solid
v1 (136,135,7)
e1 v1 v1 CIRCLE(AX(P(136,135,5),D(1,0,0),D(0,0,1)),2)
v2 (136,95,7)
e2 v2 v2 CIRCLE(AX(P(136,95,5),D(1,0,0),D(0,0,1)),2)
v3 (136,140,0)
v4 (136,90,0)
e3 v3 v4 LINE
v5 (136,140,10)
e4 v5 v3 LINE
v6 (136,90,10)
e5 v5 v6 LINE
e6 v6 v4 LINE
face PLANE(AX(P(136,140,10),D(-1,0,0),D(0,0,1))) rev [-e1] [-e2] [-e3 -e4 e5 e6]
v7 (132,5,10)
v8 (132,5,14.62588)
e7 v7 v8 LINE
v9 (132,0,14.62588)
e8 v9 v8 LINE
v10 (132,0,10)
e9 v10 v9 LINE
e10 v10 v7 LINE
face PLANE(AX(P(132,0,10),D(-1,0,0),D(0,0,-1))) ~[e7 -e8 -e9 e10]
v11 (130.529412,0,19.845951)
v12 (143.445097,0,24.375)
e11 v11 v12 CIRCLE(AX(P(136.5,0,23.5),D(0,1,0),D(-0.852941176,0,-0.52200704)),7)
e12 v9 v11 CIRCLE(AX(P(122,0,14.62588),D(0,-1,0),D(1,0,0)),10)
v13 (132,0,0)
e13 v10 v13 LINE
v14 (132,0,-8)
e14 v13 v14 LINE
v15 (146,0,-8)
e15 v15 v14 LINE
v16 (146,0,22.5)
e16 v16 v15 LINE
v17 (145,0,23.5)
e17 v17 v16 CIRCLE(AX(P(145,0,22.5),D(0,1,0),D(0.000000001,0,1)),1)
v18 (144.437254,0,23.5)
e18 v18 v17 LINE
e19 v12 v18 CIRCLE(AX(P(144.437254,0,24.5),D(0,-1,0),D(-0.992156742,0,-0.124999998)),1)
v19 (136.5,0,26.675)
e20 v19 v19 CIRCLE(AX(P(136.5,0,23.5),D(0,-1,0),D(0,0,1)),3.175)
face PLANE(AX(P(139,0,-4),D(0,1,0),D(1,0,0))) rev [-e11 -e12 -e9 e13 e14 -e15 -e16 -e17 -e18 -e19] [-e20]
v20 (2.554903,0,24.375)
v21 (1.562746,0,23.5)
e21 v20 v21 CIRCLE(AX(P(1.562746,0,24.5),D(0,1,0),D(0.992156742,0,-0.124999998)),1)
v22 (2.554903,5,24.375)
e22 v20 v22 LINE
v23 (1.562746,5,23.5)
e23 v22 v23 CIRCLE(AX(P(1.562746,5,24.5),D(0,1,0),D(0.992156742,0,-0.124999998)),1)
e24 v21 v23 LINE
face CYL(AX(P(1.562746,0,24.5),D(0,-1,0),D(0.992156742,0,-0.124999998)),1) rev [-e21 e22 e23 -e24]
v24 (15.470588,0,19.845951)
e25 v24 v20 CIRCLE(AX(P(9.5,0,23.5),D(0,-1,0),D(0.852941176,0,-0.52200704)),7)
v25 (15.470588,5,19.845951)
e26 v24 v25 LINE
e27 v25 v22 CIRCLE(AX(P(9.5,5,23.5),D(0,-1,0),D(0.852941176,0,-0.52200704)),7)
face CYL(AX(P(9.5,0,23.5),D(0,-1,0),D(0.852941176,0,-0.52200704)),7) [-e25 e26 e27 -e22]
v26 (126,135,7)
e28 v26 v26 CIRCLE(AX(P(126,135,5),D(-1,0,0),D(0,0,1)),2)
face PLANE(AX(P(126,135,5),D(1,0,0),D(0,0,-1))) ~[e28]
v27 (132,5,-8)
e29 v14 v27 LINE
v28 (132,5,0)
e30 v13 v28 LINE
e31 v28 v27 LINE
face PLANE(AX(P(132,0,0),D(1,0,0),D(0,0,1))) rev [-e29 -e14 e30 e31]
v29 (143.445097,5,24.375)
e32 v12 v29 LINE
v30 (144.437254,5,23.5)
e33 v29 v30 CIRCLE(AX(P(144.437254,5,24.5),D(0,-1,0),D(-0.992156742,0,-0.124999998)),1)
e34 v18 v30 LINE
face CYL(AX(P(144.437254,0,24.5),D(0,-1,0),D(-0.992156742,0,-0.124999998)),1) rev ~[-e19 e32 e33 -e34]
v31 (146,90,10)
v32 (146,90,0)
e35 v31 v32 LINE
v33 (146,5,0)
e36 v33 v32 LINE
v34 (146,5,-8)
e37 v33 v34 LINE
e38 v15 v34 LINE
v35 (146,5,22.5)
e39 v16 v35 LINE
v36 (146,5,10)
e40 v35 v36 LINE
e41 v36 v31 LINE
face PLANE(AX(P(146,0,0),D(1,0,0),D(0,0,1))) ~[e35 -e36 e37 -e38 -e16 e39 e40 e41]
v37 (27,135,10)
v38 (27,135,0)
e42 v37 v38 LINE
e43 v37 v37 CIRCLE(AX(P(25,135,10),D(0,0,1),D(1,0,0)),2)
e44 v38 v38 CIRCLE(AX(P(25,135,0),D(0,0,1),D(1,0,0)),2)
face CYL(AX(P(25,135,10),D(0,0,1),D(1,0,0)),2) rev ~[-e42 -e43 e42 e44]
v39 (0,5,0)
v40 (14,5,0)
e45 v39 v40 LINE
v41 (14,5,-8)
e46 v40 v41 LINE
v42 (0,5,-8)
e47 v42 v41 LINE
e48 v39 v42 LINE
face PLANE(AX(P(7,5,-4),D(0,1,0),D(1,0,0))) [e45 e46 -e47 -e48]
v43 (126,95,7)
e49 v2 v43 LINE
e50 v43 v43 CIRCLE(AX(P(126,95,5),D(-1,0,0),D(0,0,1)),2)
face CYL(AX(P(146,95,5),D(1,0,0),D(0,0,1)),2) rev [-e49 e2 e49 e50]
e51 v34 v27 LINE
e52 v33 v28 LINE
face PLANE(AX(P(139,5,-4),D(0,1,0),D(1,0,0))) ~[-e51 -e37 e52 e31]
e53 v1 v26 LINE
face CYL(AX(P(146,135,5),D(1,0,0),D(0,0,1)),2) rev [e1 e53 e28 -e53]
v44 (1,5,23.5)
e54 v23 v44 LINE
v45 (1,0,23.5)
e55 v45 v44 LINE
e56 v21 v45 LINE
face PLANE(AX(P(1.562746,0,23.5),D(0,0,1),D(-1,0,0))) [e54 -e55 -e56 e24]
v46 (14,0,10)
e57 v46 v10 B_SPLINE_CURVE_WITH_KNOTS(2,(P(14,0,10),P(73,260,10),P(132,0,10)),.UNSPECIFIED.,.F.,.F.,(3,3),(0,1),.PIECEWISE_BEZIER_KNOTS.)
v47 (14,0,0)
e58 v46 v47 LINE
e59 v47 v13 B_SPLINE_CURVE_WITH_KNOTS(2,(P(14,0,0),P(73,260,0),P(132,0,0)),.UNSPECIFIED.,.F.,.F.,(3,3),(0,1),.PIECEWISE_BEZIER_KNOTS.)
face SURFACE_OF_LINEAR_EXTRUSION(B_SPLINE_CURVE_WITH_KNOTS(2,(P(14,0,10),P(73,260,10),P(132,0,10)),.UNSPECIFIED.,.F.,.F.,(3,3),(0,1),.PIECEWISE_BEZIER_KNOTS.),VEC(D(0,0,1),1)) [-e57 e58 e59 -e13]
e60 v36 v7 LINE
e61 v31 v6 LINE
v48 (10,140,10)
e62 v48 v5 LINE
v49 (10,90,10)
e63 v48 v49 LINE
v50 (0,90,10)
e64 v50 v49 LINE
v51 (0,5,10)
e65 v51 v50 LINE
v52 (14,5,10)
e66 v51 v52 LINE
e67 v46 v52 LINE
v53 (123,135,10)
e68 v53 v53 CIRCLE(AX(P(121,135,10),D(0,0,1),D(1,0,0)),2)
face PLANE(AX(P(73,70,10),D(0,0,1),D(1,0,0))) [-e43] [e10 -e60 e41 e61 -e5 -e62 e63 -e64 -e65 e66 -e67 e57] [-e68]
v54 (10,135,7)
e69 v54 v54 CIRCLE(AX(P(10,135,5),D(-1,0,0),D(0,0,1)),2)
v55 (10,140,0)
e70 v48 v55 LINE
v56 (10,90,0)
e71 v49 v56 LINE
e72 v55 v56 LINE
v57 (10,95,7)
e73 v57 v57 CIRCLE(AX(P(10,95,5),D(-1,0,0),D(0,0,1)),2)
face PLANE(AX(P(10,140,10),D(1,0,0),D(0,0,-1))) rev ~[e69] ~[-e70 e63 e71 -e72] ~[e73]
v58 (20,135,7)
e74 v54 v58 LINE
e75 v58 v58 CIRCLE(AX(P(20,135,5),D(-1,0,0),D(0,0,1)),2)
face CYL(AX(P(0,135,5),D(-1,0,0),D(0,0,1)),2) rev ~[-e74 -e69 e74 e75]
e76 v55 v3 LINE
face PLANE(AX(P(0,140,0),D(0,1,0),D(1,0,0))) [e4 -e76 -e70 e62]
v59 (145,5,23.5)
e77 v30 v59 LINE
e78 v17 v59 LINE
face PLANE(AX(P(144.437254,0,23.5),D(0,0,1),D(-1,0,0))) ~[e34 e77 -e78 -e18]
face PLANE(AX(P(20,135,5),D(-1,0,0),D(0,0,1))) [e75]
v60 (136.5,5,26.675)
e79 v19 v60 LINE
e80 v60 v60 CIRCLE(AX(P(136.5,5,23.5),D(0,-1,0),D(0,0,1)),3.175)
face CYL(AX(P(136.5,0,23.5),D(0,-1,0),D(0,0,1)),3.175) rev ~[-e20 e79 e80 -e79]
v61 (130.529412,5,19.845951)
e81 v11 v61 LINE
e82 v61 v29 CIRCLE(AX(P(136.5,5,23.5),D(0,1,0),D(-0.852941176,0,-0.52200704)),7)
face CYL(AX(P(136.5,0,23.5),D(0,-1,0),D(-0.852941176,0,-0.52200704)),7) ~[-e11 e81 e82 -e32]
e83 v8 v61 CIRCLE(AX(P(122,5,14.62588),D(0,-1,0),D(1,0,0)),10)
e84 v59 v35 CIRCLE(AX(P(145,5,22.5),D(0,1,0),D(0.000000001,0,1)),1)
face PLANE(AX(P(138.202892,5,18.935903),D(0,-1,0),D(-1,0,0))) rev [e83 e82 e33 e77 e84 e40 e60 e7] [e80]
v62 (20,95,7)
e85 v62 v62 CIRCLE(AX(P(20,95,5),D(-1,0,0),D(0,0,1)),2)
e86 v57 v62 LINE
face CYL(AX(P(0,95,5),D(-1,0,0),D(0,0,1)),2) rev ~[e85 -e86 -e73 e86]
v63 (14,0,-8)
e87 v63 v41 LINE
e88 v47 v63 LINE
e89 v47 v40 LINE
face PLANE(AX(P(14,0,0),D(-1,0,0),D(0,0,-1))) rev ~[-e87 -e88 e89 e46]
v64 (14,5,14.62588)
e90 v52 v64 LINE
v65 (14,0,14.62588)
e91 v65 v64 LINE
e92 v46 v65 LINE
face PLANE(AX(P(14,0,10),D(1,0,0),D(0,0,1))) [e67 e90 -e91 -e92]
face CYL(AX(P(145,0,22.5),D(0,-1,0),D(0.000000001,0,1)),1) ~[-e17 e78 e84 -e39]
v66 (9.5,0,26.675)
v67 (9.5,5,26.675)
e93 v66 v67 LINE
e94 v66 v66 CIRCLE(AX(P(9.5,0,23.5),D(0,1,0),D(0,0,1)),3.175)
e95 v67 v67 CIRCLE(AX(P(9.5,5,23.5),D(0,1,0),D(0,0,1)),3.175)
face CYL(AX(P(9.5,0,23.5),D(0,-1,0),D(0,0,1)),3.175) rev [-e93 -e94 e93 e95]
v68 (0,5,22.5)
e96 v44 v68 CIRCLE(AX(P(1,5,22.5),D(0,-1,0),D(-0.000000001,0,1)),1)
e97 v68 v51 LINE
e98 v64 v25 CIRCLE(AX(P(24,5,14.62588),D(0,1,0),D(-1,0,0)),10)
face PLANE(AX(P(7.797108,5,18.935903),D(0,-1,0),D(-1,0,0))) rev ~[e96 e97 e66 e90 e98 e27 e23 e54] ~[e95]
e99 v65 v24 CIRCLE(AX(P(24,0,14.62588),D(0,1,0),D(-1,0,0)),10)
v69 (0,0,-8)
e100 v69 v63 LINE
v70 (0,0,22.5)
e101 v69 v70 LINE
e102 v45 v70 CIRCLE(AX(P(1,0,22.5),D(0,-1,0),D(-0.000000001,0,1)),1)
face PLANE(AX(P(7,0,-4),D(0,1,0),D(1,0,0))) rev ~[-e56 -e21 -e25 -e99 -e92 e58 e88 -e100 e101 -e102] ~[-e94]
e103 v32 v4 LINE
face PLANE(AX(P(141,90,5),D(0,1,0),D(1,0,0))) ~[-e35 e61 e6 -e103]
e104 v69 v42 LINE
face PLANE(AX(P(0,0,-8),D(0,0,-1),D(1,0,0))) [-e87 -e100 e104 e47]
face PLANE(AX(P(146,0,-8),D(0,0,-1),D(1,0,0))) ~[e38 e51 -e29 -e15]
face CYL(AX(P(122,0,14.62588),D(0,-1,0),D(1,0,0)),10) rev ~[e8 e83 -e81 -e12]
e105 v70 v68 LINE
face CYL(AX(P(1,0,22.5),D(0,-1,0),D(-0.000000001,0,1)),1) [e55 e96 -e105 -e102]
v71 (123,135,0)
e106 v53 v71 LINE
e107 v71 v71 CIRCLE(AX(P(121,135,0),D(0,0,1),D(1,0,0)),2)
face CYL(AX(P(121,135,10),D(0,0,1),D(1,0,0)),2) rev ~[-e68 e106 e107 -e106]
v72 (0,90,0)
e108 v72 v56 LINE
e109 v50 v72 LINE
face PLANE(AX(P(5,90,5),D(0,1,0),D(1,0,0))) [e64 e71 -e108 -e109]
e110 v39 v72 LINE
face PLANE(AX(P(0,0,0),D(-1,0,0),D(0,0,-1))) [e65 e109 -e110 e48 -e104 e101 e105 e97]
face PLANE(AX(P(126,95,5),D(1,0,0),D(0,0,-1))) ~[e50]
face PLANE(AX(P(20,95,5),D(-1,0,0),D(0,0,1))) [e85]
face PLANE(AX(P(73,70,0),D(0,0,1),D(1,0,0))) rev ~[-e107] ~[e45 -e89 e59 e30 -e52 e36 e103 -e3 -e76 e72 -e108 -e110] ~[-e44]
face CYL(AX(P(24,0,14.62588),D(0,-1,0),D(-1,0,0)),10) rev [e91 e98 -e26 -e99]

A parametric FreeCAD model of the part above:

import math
import FreeCAD as App
import Part
import Sketcher

doc = App.newDocument("Part")
params = doc.addObject("Spreadsheet::Sheet", "Params")
for row, (alias, value) in enumerate([
    ("sketch1_width", "146 mm"),
    ("sketch1_height", "140 mm"),
    ("pad1_length", "10 mm"),
    ("pocket1_length", "10 mm"),
    ("sketch3_diameter", "4 mm"),
    ("pocket2_length", "20 mm"),
    ("sketch4_width", "10 mm"),
    ("pocket3_length", "50 mm"),
    ("sketch5_radius", "1 mm"),
    ("sketch5_radius2", "7 mm"),
    ("sketch5_radius3", "10 mm"),
    ("sketch5_diameter", "6.35 mm"),
    ("sketch5_width", "14 mm"),
    ("pad2_length", "5 mm"),
    ("sketch6_width", "14 mm"),
    ("sketch6_height", "8 mm"),
    ("pad3_length", "5 mm"),
    ("sketch7_diameter", "4 mm"),
    ("pocket4_length", "20 mm"),
], start=1):
    params.set(f"A{row}", alias)
    params.set(f"B{row}", "=" + value)
    params.setAlias(f"B{row}", alias)

body = doc.addObject("PartDesign::Body", "Body")

sketch1 = body.newObject("Sketcher::SketchObject", "Sketch")
sketch1.AttachmentSupport = (doc.getObject("XY_Plane"), [""])
sketch1.MapMode = "FlatFace"
sketch1.addGeometry([
    Part.LineSegment(App.Vector(0, 140, 0), App.Vector(0, 0, 0)),
    Part.LineSegment(App.Vector(0, 0, 0), App.Vector(146, 0, 0)),
    Part.LineSegment(App.Vector(146, 0, 0), App.Vector(146, 140, 0)),
    Part.LineSegment(App.Vector(146, 140, 0), App.Vector(0, 140, 0)),
], False)
sketch1.addConstraint([
    Sketcher.Constraint("Coincident", 0, 2, 1, 1),
    Sketcher.Constraint("Coincident", 1, 2, 2, 1),
    Sketcher.Constraint("Coincident", 2, 2, 3, 1),
    Sketcher.Constraint("Coincident", 3, 2, 0, 1),
    Sketcher.Constraint("Vertical", 0),
    Sketcher.Constraint("Horizontal", 1),
    Sketcher.Constraint("Vertical", 2),
    Sketcher.Constraint("Horizontal", 3),
    Sketcher.Constraint("Coincident", 0, 2, -1, 1),
    Sketcher.Constraint("DistanceX", 1, 1, 1, 2, 146.0),
    Sketcher.Constraint("DistanceY", 0, 2, 0, 1, 140.0),
])
sketch1.setExpression("Constraints[9]", "Params.sketch1_width")
sketch1.setExpression("Constraints[10]", "Params.sketch1_height")
pad1 = body.newObject("PartDesign::Pad", "Pad")
pad1.Profile = sketch1
pad1.setExpression("Length", "Params.pad1_length")

sketch2 = body.newObject("Sketcher::SketchObject", "Sketch001")
sketch2.AttachmentSupport = (doc.getObject("XY_Plane"), [""])
sketch2.MapMode = "FlatFace"
sketch2.AttachmentOffset = App.Placement(App.Vector(0, 0, 10), App.Rotation())
sketch2.addGeometry([
    Part.LineSegment(App.Vector(14, 0, 0), App.Vector(132, 0, 0)),
    Part.BSplineCurve([App.Vector(14, 0, 0), App.Vector(73, 260, 0), App.Vector(132, 0, 0)], [3, 3], [0, 1], False, 2, [1, 1, 1], False),
], False)
sketch2.addConstraint([
    Sketcher.Constraint("Block", 1),
    Sketcher.Constraint("Coincident", 0, 1, 1, 1),
    Sketcher.Constraint("Coincident", 1, 2, 0, 2),
])
pocket1 = body.newObject("PartDesign::Pocket", "Pocket")
pocket1.Profile = sketch2
pocket1.setExpression("Length", "Params.pocket1_length")

sketch3 = body.newObject("Sketcher::SketchObject", "Sketch002")
sketch3.AttachmentSupport = (doc.getObject("YZ_Plane"), [""])
sketch3.MapMode = "FlatFace"
sketch3.addGeometry([
    Part.Circle(App.Vector(135, 5, 0), App.Vector(0, 0, 1), 2),
    Part.Circle(App.Vector(95, 5, 0), App.Vector(0, 0, 1), 2),
], False)
sketch3.addConstraint([
    Sketcher.Constraint("Equal", 0, 1),
    Sketcher.Constraint("Horizontal", 0, 3, 1, 3),
    Sketcher.Constraint("Diameter", 0, 4.0),
    Sketcher.Constraint("DistanceX", -1, 1, 0, 3, 135.0),
    Sketcher.Constraint("DistanceY", -1, 1, 0, 3, 5.0),
    Sketcher.Constraint("DistanceX", -1, 1, 1, 3, 95.0),
])
sketch3.setExpression("Constraints[2]", "Params.sketch3_diameter")
pocket2 = body.newObject("PartDesign::Pocket", "Pocket001")
pocket2.Profile = sketch3
pocket2.setExpression("Length", "Params.pocket2_length")
pocket2.Reversed = True

sketch4 = body.newObject("Sketcher::SketchObject", "Sketch003")
sketch4.AttachmentSupport = (doc.getObject("XZ_Plane"), [""])
sketch4.MapMode = "FlatFace"
sketch4.AttachmentOffset = App.Placement(App.Vector(0, 0, -140), App.Rotation())
sketch4.addGeometry([
    Part.LineSegment(App.Vector(0, 0, 0), App.Vector(0, 10, 0)),
    Part.LineSegment(App.Vector(0, 10, 0), App.Vector(10, 10, 0)),
    Part.LineSegment(App.Vector(10, 10, 0), App.Vector(10, 0, 0)),
    Part.LineSegment(App.Vector(10, 0, 0), App.Vector(0, 0, 0)),
], False)
sketch4.addConstraint([
    Sketcher.Constraint("Coincident", 0, 2, 1, 1),
    Sketcher.Constraint("Coincident", 1, 2, 2, 1),
    Sketcher.Constraint("Coincident", 2, 2, 3, 1),
    Sketcher.Constraint("Coincident", 3, 2, 0, 1),
    Sketcher.Constraint("Vertical", 0),
    Sketcher.Constraint("Horizontal", 1),
    Sketcher.Constraint("Vertical", 2),
    Sketcher.Constraint("Horizontal", 3),
    Sketcher.Constraint("Coincident", 3, 2, -1, 1),
    Sketcher.Constraint("Equal", 3, 0),
    Sketcher.Constraint("DistanceX", 1, 1, 1, 2, 10.0),
])
sketch4.setExpression("Constraints[10]", "Params.sketch4_width")
pocket3 = body.newObject("PartDesign::Pocket", "Pocket002")
pocket3.Profile = sketch4
pocket3.setExpression("Length", "Params.pocket3_length")
pocket3.Reversed = True
doc.recompute()

datumplane = body.newObject("PartDesign::Plane", "DatumPlane")
datumplane.AttachmentSupport = (doc.getObject("YZ_Plane"), [""])
datumplane.MapMode = "FlatFace"
datumplane.AttachmentOffset = App.Placement(App.Vector(0, 0, 73), App.Rotation())
mirrored = body.newObject("PartDesign::Mirrored", "Mirrored")
mirrored.Originals = [pocket2, pocket3]
mirrored.MirrorPlane = (datumplane, [""])
body.Tip = mirrored

sketch5 = body.newObject("Sketcher::SketchObject", "Sketch004")
sketch5.AttachmentSupport = (doc.getObject("XZ_Plane"), [""])
sketch5.MapMode = "FlatFace"
sketch5.addGeometry([
    Part.LineSegment(App.Vector(14, 14.6, 0), App.Vector(14, 10, 0)),
    Part.LineSegment(App.Vector(14, 10, 0), App.Vector(0, 10, 0)),
    Part.LineSegment(App.Vector(0, 10, 0), App.Vector(0, 22.5, 0)),
    Part.ArcOfCircle(Part.Circle(App.Vector(1, 22.5, 0), App.Vector(0, 0, 1), 1), math.radians(90), math.radians(180)),
    Part.LineSegment(App.Vector(1, 23.5, 0), App.Vector(1.6, 23.5, 0)),
    Part.ArcOfCircle(Part.Circle(App.Vector(1.6, 24.5, 0), App.Vector(0, 0, 1), 1), math.radians(-90), math.radians(-7)),
    Part.ArcOfCircle(Part.Circle(App.Vector(9.5, 23.5, 0), App.Vector(0, 0, 1), 7), math.radians(-31), math.radians(173)),
    Part.ArcOfCircle(Part.Circle(App.Vector(24, 14.6, 0), App.Vector(0, 0, 1), 10), math.radians(149), math.radians(180)),
    Part.Circle(App.Vector(9.5, 23.5, 0), App.Vector(0, 0, 1), 3.2),
], False)
sketch5.addConstraint([
    Sketcher.Constraint("Coincident", 0, 2, 1, 1),
    Sketcher.Constraint("Coincident", 1, 2, 2, 1),
    Sketcher.Constraint("Tangent", 2, 2, 3, 2),
    Sketcher.Constraint("Tangent", 3, 1, 4, 1),
    Sketcher.Constraint("Tangent", 4, 2, 5, 1),
    Sketcher.Constraint("Tangent", 5, 2, 6, 2),
    Sketcher.Constraint("Tangent", 6, 1, 7, 1),
    Sketcher.Constraint("Tangent", 7, 2, 0, 1),
    Sketcher.Constraint("Vertical", 0),
    Sketcher.Constraint("Horizontal", 1),
    Sketcher.Constraint("Vertical", 2),
    Sketcher.Constraint("Horizontal", 4),
    Sketcher.Constraint("Coincident", 8, 3, 6, 3),
    Sketcher.Constraint("Equal", 3, 5),
    Sketcher.Constraint("PointOnObject", 1, 2, -2),
    Sketcher.Constraint("Horizontal", 8, 3, 3, 1),
    Sketcher.Constraint("Radius", 3, 1.0),
    Sketcher.Constraint("Radius", 6, 7.0),
    Sketcher.Constraint("Radius", 7, 10.0),
    Sketcher.Constraint("Diameter", 8, 6.35),
    Sketcher.Constraint("DistanceX", 1, 2, 1, 1, 14.0),
    Sketcher.Constraint("DistanceY", 2, 1, 2, 2, 12.5),
    Sketcher.Constraint("DistanceY", -1, 1, 0, 2, 10.0),
    Sketcher.Constraint("DistanceX", -1, 1, 6, 3, 9.5),
])
sketch5.setExpression("Constraints[16]", "Params.sketch5_radius")
sketch5.setExpression("Constraints[17]", "Params.sketch5_radius2")
sketch5.setExpression("Constraints[18]", "Params.sketch5_radius3")
sketch5.setExpression("Constraints[19]", "Params.sketch5_diameter")
sketch5.setExpression("Constraints[20]", "Params.sketch5_width")
pad2 = body.newObject("PartDesign::Pad", "Pad001")
pad2.Profile = sketch5
pad2.setExpression("Length", "Params.pad2_length")
pad2.Reversed = True
doc.recompute()

datumplane2 = body.newObject("PartDesign::Plane", "DatumPlane001")
datumplane2.AttachmentSupport = (doc.getObject("YZ_Plane"), [""])
datumplane2.MapMode = "FlatFace"
datumplane2.AttachmentOffset = App.Placement(App.Vector(0, 0, 73), App.Rotation())
mirrored2 = body.newObject("PartDesign::Mirrored", "Mirrored001")
mirrored2.Originals = [pad2]
mirrored2.MirrorPlane = (datumplane2, [""])
body.Tip = mirrored2

sketch6 = body.newObject("Sketcher::SketchObject", "Sketch005")
sketch6.AttachmentSupport = (doc.getObject("XZ_Plane"), [""])
sketch6.MapMode = "FlatFace"
sketch6.addGeometry([
    Part.LineSegment(App.Vector(0, -8, 0), App.Vector(0, 0, 0)),
    Part.LineSegment(App.Vector(0, 0, 0), App.Vector(14, 0, 0)),
    Part.LineSegment(App.Vector(14, 0, 0), App.Vector(14, -8, 0)),
    Part.LineSegment(App.Vector(14, -8, 0), App.Vector(0, -8, 0)),
], False)
sketch6.addConstraint([
    Sketcher.Constraint("Coincident", 0, 2, 1, 1),
    Sketcher.Constraint("Coincident", 1, 2, 2, 1),
    Sketcher.Constraint("Coincident", 2, 2, 3, 1),
    Sketcher.Constraint("Coincident", 3, 2, 0, 1),
    Sketcher.Constraint("Vertical", 0),
    Sketcher.Constraint("Horizontal", 1),
    Sketcher.Constraint("Vertical", 2),
    Sketcher.Constraint("Horizontal", 3),
    Sketcher.Constraint("Coincident", 0, 2, -1, 1),
    Sketcher.Constraint("DistanceX", 1, 1, 1, 2, 14.0),
    Sketcher.Constraint("DistanceY", 0, 1, 0, 2, 8.0),
])
sketch6.setExpression("Constraints[9]", "Params.sketch6_width")
sketch6.setExpression("Constraints[10]", "Params.sketch6_height")
pad3 = body.newObject("PartDesign::Pad", "Pad002")
pad3.Profile = sketch6
pad3.setExpression("Length", "Params.pad3_length")
pad3.Reversed = True
doc.recompute()

datumplane3 = body.newObject("PartDesign::Plane", "DatumPlane002")
datumplane3.AttachmentSupport = (doc.getObject("YZ_Plane"), [""])
datumplane3.MapMode = "FlatFace"
datumplane3.AttachmentOffset = App.Placement(App.Vector(0, 0, 73), App.Rotation())
mirrored3 = body.newObject("PartDesign::Mirrored", "Mirrored002")
mirrored3.Originals = [pad3]
mirrored3.MirrorPlane = (datumplane3, [""])
body.Tip = mirrored3

sketch7 = body.newObject("Sketcher::SketchObject", "Sketch006")
sketch7.AttachmentSupport = (doc.getObject("XY_Plane"), [""])
sketch7.MapMode = "FlatFace"
sketch7.AttachmentOffset = App.Placement(App.Vector(0, 0, 10), App.Rotation())
sketch7.addGeometry([
    Part.Circle(App.Vector(25, 135, 0), App.Vector(0, 0, 1), 2),
    Part.Circle(App.Vector(121, 135, 0), App.Vector(0, 0, 1), 2),
], False)
sketch7.addConstraint([
    Sketcher.Constraint("Equal", 0, 1),
    Sketcher.Constraint("Horizontal", 0, 3, 1, 3),
    Sketcher.Constraint("Diameter", 0, 4.0),
    Sketcher.Constraint("DistanceX", -1, 1, 0, 3, 25.0),
    Sketcher.Constraint("DistanceY", -1, 1, 0, 3, 135.0),
    Sketcher.Constraint("DistanceX", -1, 1, 1, 3, 121.0),
])
sketch7.setExpression("Constraints[2]", "Params.sketch7_diameter")
pocket4 = body.newObject("PartDesign::Pocket", "Pocket003")
pocket4.Profile = sketch7
pocket4.setExpression("Length", "Params.pocket4_length")

doc.recompute()
